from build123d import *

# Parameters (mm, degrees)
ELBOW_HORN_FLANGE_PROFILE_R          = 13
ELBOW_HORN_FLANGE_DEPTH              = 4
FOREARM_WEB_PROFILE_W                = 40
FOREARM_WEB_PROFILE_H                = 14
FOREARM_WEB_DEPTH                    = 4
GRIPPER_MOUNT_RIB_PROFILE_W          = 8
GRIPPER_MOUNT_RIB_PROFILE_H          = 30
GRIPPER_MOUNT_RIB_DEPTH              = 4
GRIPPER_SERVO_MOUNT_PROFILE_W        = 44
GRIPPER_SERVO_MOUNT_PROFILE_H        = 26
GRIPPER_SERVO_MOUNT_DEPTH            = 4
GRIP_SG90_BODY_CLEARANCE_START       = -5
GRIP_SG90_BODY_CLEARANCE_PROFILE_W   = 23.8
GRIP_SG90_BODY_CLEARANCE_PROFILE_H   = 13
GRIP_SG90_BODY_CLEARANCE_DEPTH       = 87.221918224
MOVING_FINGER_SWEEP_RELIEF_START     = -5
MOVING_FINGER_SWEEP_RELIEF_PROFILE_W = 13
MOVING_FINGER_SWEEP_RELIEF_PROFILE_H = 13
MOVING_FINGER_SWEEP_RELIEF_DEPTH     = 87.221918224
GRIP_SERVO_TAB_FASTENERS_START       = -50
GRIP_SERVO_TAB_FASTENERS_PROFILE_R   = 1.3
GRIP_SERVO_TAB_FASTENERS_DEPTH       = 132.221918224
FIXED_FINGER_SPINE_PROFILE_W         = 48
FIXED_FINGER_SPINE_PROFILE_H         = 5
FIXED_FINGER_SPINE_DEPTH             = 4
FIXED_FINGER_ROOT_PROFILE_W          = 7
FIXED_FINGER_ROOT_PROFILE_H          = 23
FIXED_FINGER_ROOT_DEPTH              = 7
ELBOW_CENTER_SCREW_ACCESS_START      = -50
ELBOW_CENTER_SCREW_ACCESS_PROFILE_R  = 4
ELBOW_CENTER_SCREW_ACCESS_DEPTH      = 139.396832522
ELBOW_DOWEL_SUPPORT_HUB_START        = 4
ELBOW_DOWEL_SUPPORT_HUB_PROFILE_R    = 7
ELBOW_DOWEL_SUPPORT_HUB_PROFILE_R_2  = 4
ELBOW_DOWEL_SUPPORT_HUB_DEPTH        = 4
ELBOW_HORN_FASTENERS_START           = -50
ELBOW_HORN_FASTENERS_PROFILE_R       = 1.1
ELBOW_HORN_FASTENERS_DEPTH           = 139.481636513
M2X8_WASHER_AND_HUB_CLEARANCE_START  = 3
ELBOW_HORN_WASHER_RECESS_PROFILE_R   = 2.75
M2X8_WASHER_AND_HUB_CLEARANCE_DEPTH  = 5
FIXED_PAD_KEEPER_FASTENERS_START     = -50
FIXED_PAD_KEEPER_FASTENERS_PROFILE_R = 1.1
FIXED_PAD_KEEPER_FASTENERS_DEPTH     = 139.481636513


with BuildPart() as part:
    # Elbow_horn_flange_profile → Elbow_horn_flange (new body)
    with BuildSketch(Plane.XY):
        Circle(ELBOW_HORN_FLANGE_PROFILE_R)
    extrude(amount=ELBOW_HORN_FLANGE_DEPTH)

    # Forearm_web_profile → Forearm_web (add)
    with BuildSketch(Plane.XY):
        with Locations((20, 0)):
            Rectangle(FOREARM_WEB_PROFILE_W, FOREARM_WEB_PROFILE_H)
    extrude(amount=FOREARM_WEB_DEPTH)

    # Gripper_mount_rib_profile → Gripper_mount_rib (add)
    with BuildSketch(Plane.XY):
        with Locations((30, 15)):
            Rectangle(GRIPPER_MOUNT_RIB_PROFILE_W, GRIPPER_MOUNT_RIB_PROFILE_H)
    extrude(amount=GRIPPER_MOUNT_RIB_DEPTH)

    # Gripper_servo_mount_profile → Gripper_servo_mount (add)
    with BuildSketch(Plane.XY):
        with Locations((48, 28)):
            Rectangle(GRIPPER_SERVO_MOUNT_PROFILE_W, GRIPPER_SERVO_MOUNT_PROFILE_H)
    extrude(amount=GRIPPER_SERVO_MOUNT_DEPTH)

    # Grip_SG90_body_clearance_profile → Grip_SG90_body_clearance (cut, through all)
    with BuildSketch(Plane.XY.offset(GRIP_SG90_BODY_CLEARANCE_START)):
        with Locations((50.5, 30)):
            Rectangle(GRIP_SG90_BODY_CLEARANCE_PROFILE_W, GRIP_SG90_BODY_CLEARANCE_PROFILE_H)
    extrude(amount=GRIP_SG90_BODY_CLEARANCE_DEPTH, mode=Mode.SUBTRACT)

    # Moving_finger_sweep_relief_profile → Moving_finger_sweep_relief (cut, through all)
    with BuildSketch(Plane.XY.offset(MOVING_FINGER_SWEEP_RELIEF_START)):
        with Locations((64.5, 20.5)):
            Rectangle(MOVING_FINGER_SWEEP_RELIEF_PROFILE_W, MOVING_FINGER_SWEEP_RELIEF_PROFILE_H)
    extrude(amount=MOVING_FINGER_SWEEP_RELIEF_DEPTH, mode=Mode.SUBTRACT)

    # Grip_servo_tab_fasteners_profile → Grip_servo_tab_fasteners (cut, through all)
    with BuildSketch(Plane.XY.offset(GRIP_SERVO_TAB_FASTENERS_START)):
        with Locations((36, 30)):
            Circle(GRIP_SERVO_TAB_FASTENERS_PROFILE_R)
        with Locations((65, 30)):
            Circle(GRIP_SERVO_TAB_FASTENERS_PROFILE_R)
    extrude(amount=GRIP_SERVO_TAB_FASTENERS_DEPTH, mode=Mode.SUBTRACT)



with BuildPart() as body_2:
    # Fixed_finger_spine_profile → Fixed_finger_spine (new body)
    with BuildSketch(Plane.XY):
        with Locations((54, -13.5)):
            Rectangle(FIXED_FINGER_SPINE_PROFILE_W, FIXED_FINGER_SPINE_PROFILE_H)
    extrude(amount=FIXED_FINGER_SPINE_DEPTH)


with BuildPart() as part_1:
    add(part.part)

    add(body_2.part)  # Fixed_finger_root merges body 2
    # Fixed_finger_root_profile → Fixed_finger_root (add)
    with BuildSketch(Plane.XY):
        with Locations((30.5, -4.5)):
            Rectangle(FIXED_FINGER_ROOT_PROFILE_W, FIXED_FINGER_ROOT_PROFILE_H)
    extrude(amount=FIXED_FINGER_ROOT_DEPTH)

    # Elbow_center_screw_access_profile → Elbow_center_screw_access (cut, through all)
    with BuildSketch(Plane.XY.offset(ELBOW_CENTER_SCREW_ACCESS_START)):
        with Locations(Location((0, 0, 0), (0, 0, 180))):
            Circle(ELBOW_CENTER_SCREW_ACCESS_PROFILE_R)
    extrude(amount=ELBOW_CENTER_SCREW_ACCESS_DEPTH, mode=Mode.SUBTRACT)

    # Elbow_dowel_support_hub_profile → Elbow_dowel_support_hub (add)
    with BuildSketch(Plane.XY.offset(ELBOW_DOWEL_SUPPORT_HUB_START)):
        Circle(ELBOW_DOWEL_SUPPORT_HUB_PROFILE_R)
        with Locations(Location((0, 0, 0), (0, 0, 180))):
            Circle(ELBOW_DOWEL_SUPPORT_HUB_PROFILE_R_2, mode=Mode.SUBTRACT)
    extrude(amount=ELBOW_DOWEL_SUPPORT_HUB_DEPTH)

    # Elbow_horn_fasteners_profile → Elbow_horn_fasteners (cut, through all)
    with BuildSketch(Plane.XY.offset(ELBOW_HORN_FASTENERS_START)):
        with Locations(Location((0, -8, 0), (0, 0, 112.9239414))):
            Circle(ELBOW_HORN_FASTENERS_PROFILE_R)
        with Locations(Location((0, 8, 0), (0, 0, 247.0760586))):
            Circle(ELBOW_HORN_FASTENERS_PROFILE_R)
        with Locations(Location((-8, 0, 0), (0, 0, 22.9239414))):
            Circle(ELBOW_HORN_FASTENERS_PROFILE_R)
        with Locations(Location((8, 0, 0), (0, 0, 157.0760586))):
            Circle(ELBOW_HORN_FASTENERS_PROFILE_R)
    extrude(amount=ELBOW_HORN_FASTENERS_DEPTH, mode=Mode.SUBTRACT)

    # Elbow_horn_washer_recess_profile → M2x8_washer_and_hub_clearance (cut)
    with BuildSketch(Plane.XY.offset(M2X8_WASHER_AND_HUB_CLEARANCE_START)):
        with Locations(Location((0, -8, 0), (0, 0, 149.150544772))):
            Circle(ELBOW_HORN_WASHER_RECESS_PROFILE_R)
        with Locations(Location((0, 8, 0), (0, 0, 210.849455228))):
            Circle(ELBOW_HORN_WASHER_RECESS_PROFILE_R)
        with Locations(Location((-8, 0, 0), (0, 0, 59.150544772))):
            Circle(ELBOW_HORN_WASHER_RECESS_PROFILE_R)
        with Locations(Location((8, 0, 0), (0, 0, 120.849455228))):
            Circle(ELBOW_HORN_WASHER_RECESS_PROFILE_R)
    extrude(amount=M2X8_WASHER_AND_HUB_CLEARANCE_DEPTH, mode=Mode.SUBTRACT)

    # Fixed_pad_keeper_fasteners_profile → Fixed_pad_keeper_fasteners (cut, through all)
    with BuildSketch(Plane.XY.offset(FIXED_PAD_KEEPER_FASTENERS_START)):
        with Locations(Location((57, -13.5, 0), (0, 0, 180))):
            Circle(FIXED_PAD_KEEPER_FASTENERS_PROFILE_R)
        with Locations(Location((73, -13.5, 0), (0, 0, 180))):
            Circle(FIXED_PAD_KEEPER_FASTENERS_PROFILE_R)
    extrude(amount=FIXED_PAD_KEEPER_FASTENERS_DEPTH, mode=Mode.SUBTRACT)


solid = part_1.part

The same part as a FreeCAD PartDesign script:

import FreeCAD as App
import Part
import Sketcher

doc = App.newDocument("Part")
body = doc.addObject("PartDesign::Body", "Body")

sketch1 = body.newObject("Sketcher::SketchObject", "Sketch")
sketch1.AttachmentSupport = (doc.getObject("XY_Plane"), [""])
sketch1.MapMode = "FlatFace"
sketch1.addGeometry(Part.Circle(App.Vector(0, 0, 0), App.Vector(0, 0, 1), 13), False)
sketch1.addConstraint([
    Sketcher.Constraint("Coincident", 0, 3, -1, 1),
    Sketcher.Constraint("Diameter", 0, 26.0),
])
pad1 = body.newObject("PartDesign::Pad", "Pad")
pad1.Profile = sketch1
pad1.Length = 4

sketch2 = body.newObject("Sketcher::SketchObject", "Sketch001")
sketch2.AttachmentSupport = (doc.getObject("XY_Plane"), [""])
sketch2.MapMode = "FlatFace"
sketch2.addGeometry([
    Part.LineSegment(App.Vector(0, 7, 0), App.Vector(0, -7, 0)),
    Part.LineSegment(App.Vector(0, -7, 0), App.Vector(40, -7, 0)),
    Part.LineSegment(App.Vector(40, -7, 0), App.Vector(40, 7, 0)),
    Part.LineSegment(App.Vector(40, 7, 0), App.Vector(0, 7, 0)),
], False)
sketch2.addConstraint([
    Sketcher.Constraint("Coincident", 0, 2, 1, 1),
    Sketcher.Constraint("Coincident", 1, 2, 2, 1),
    Sketcher.Constraint("Coincident", 2, 2, 3, 1),
    Sketcher.Constraint("Coincident", 3, 2, 0, 1),
    Sketcher.Constraint("Vertical", 0),
    Sketcher.Constraint("Horizontal", 1),
    Sketcher.Constraint("Vertical", 2),
    Sketcher.Constraint("Horizontal", 3),
    Sketcher.Constraint("Symmetric", 0, 2, 3, 2, -1, 1),
    Sketcher.Constraint("DistanceX", 1, 1, 1, 2, 40.0),
    Sketcher.Constraint("DistanceY", 0, 2, 0, 1, 14.0),
])
pad2 = body.newObject("PartDesign::Pad", "Pad001")
pad2.Profile = sketch2
pad2.Length = 4

sketch3 = body.newObject("Sketcher::SketchObject", "Sketch002")
sketch3.AttachmentSupport = (doc.getObject("XY_Plane"), [""])
sketch3.MapMode = "FlatFace"
sketch3.addGeometry([
    Part.LineSegment(App.Vector(26, 30, 0), App.Vector(26, 0, 0)),
    Part.LineSegment(App.Vector(26, 0, 0), App.Vector(34, 0, 0)),
    Part.LineSegment(App.Vector(34, 0, 0), App.Vector(34, 30, 0)),
    Part.LineSegment(App.Vector(34, 30, 0), App.Vector(26, 30, 0)),
], False)
sketch3.addConstraint([
    Sketcher.Constraint("Coincident", 0, 2, 1, 1),
    Sketcher.Constraint("Coincident", 1, 2, 2, 1),
    Sketcher.Constraint("Coincident", 2, 2, 3, 1),
    Sketcher.Constraint("Coincident", 3, 2, 0, 1),
    Sketcher.Constraint("Vertical", 0),
    Sketcher.Constraint("Horizontal", 1),
    Sketcher.Constraint("Vertical", 2),
    Sketcher.Constraint("Horizontal", 3),
    Sketcher.Constraint("PointOnObject", 0, 2, -1),
    Sketcher.Constraint("DistanceX", 1, 1, 1, 2, 8.0),
    Sketcher.Constraint("DistanceY", 0, 2, 0, 1, 30.0),
    Sketcher.Constraint("DistanceX", -1, 1, 0, 2, 26.0),
])
pad3 = body.newObject("PartDesign::Pad", "Pad002")
pad3.Profile = sketch3
pad3.Length = 4

sketch4 = body.newObject("Sketcher::SketchObject", "Sketch003")
sketch4.AttachmentSupport = (doc.getObject("XY_Plane"), [""])
sketch4.MapMode = "FlatFace"
sketch4.addGeometry([
    Part.LineSegment(App.Vector(26, 41, 0), App.Vector(26, 15, 0)),
    Part.LineSegment(App.Vector(26, 15, 0), App.Vector(70, 15, 0)),
    Part.LineSegment(App.Vector(70, 15, 0), App.Vector(70, 41, 0)),
    Part.LineSegment(App.Vector(70, 41, 0), App.Vector(26, 41, 0)),
], False)
sketch4.addConstraint([
    Sketcher.Constraint("Coincident", 0, 2, 1, 1),
    Sketcher.Constraint("Coincident", 1, 2, 2, 1),
    Sketcher.Constraint("Coincident", 2, 2, 3, 1),
    Sketcher.Constraint("Coincident", 3, 2, 0, 1),
    Sketcher.Constraint("Vertical", 0),
    Sketcher.Constraint("Horizontal", 1),
    Sketcher.Constraint("Vertical", 2),
    Sketcher.Constraint("Horizontal", 3),
    Sketcher.Constraint("DistanceX", 1, 1, 1, 2, 44.0),
    Sketcher.Constraint("DistanceY", 0, 2, 0, 1, 26.0),
    Sketcher.Constraint("DistanceX", -1, 1, 0, 2, 26.0),
    Sketcher.Constraint("DistanceY", -1, 1, 0, 2, 15.0),
])
pad4 = body.newObject("PartDesign::Pad", "Pad003")
pad4.Profile = sketch4
pad4.Length = 4

sketch5 = body.newObject("Sketcher::SketchObject", "Sketch004")
sketch5.AttachmentSupport = (doc.getObject("XY_Plane"), [""])
sketch5.MapMode = "FlatFace"
sketch5.AttachmentOffset = App.Placement(App.Vector(0, 0, -5), App.Rotation())
sketch5.addGeometry([
    Part.LineSegment(App.Vector(39, 36, 0), App.Vector(39, 24, 0)),
    Part.LineSegment(App.Vector(39, 24, 0), App.Vector(62, 24, 0)),
    Part.LineSegment(App.Vector(62, 24, 0), App.Vector(62, 36, 0)),
    Part.LineSegment(App.Vector(62, 36, 0), App.Vector(39, 36, 0)),
], False)
sketch5.addConstraint([
    Sketcher.Constraint("Coincident", 0, 2, 1, 1),
    Sketcher.Constraint("Coincident", 1, 2, 2, 1),
    Sketcher.Constraint("Coincident", 2, 2, 3, 1),
    Sketcher.Constraint("Coincident", 3, 2, 0, 1),
    Sketcher.Constraint("Vertical", 0),
    Sketcher.Constraint("Horizontal", 1),
    Sketcher.Constraint("Vertical", 2),
    Sketcher.Constraint("Horizontal", 3),
    Sketcher.Constraint("DistanceY", 0, 2, 0, 1, 13.0),
    Sketcher.Constraint("DistanceX", 1, 1, 1, 2, 23.8),
    Sketcher.Constraint("DistanceX", -1, 1, 0, 2, 38.6),
    Sketcher.Constraint("DistanceY", -1, 1, 0, 2, 23.5),
])
pocket1 = body.newObject("PartDesign::Pocket", "Pocket")
pocket1.Profile = sketch5
pocket1.Type = "ThroughAll"
pocket1.Reversed = True

sketch6 = body.newObject("Sketcher::SketchObject", "Sketch005")
sketch6.AttachmentSupport = (doc.getObject("XY_Plane"), [""])
sketch6.MapMode = "FlatFace"
sketch6.AttachmentOffset = App.Placement(App.Vector(0, 0, -5), App.Rotation())
sketch6.addGeometry([
    Part.LineSegment(App.Vector(58, 27, 0), App.Vector(58, 14, 0)),
    Part.LineSegment(App.Vector(58, 14, 0), App.Vector(71, 14, 0)),
    Part.LineSegment(App.Vector(71, 14, 0), App.Vector(71, 27, 0)),
    Part.LineSegment(App.Vector(71, 27, 0), App.Vector(58, 27, 0)),
], False)
sketch6.addConstraint([
    Sketcher.Constraint("Coincident", 0, 2, 1, 1),
    Sketcher.Constraint("Coincident", 1, 2, 2, 1),
    Sketcher.Constraint("Coincident", 2, 2, 3, 1),
    Sketcher.Constraint("Coincident", 3, 2, 0, 1),
    Sketcher.Constraint("Vertical", 0),
    Sketcher.Constraint("Horizontal", 1),
    Sketcher.Constraint("Vertical", 2),
    Sketcher.Constraint("Horizontal", 3),
    Sketcher.Constraint("Equal", 3, 0),
    Sketcher.Constraint("DistanceX", 1, 1, 1, 2, 13.0),
    Sketcher.Constraint("DistanceX", -1, 1, 0, 2, 58.0),
    Sketcher.Constraint("DistanceY", -1, 1, 0, 2, 14.0),
])
pocket2 = body.newObject("PartDesign::Pocket", "Pocket001")
pocket2.Profile = sketch6
pocket2.Type = "ThroughAll"
pocket2.Reversed = True

sketch7 = body.newObject("Sketcher::SketchObject", "Sketch006")
sketch7.AttachmentSupport = (doc.getObject("XY_Plane"), [""])
sketch7.MapMode = "FlatFace"
sketch7.AttachmentOffset = App.Placement(App.Vector(0, 0, -50), App.Rotation())
sketch7.addGeometry([
    Part.Circle(App.Vector(36, 30, 0), App.Vector(0, 0, 1), 1.3),
    Part.Circle(App.Vector(65, 30, 0), App.Vector(0, 0, 1), 1.3),
], False)
sketch7.addConstraint([
    Sketcher.Constraint("Equal", 0, 1),
    Sketcher.Constraint("Horizontal", 0, 3, 1, 3),
    Sketcher.Constraint("Diameter", 0, 2.6),
    Sketcher.Constraint("DistanceX", -1, 1, 0, 3, 36.0),
    Sketcher.Constraint("DistanceY", -1, 1, 0, 3, 30.0),
    Sketcher.Constraint("DistanceX", -1, 1, 1, 3, 65.0),
])
pocket3 = body.newObject("PartDesign::Pocket", "Pocket002")
pocket3.Profile = sketch7
pocket3.Type = "ThroughAll"
pocket3.Reversed = True
body2 = doc.addObject("PartDesign::Body", "Body001")

sketch8 = body2.newObject("Sketcher::SketchObject", "Sketch007")
sketch8.AttachmentSupport = (doc.getObject("XY_Plane001"), [""])
sketch8.MapMode = "FlatFace"
sketch8.addGeometry([
    Part.LineSegment(App.Vector(30, -11, 0), App.Vector(30, -16, 0)),
    Part.LineSegment(App.Vector(30, -16, 0), App.Vector(78, -16, 0)),
    Part.LineSegment(App.Vector(78, -16, 0), App.Vector(78, -11, 0)),
    Part.LineSegment(App.Vector(78, -11, 0), App.Vector(30, -11, 0)),
], False)
sketch8.addConstraint([
    Sketcher.Constraint("Coincident", 0, 2, 1, 1),
    Sketcher.Constraint("Coincident", 1, 2, 2, 1),
    Sketcher.Constraint("Coincident", 2, 2, 3, 1),
    Sketcher.Constraint("Coincident", 3, 2, 0, 1),
    Sketcher.Constraint("Vertical", 0),
    Sketcher.Constraint("Horizontal", 1),
    Sketcher.Constraint("Vertical", 2),
    Sketcher.Constraint("Horizontal", 3),
    Sketcher.Constraint("DistanceX", 1, 1, 1, 2, 48.0),
    Sketcher.Constraint("DistanceY", 0, 2, 0, 1, 5.0),
    Sketcher.Constraint("DistanceX", -1, 1, 0, 2, 30.0),
    Sketcher.Constraint("DistanceY", 0, 2, -1, 1, 16.0),
])
pad5 = body2.newObject("PartDesign::Pad", "Pad004")
pad5.Profile = sketch8
pad5.Length = 4
body.AllowCompound = True
doc.recompute()

boolean = body.newObject("PartDesign::Boolean", "Boolean")
boolean.Type = "Fuse"
boolean.addObjects([body2])

sketch9 = body.newObject("Sketcher::SketchObject", "Sketch008")
sketch9.AttachmentSupport = (doc.getObject("XY_Plane"), [""])
sketch9.MapMode = "FlatFace"
sketch9.addGeometry([
    Part.LineSegment(App.Vector(27, 7, 0), App.Vector(27, -16, 0)),
    Part.LineSegment(App.Vector(27, -16, 0), App.Vector(34, -16, 0)),
    Part.LineSegment(App.Vector(34, -16, 0), App.Vector(34, 7, 0)),
    Part.LineSegment(App.Vector(34, 7, 0), App.Vector(27, 7, 0)),
], False)
sketch9.addConstraint([
    Sketcher.Constraint("Coincident", 0, 2, 1, 1),
    Sketcher.Constraint("Coincident", 1, 2, 2, 1),
    Sketcher.Constraint("Coincident", 2, 2, 3, 1),
    Sketcher.Constraint("Coincident", 3, 2, 0, 1),
    Sketcher.Constraint("Vertical", 0),
    Sketcher.Constraint("Horizontal", 1),
    Sketcher.Constraint("Vertical", 2),
    Sketcher.Constraint("Horizontal", 3),
    Sketcher.Constraint("DistanceX", 1, 1, 1, 2, 7.0),
    Sketcher.Constraint("DistanceY", 0, 2, 0, 1, 23.0),
    Sketcher.Constraint("DistanceX", -1, 1, 0, 2, 27.0),
    Sketcher.Constraint("DistanceY", 0, 2, -1, 1, 16.0),
])
pad6 = body.newObject("PartDesign::Pad", "Pad005")
pad6.Profile = sketch9
pad6.Length = 7

sketch10 = body.newObject("Sketcher::SketchObject", "Sketch009")
sketch10.AttachmentSupport = (doc.getObject("XY_Plane"), [""])
sketch10.MapMode = "FlatFace"
sketch10.AttachmentOffset = App.Placement(App.Vector(0, 0, -50), App.Rotation())
sketch10.addGeometry(Part.Circle(App.Vector(0, 0, 0), App.Vector(0, 0, 1), 4), False)
sketch10.addConstraint([
    Sketcher.Constraint("Coincident", 0, 3, -1, 1),
    Sketcher.Constraint("Diameter", 0, 8.0),
])
pocket4 = body.newObject("PartDesign::Pocket", "Pocket003")
pocket4.Profile = sketch10
pocket4.Type = "ThroughAll"
pocket4.Reversed = True

sketch11 = body.newObject("Sketcher::SketchObject", "Sketch010")
sketch11.AttachmentSupport = (doc.getObject("XY_Plane"), [""])
sketch11.MapMode = "FlatFace"
sketch11.AttachmentOffset = App.Placement(App.Vector(0, 0, 4), App.Rotation())
sketch11.addGeometry([
    Part.Circle(App.Vector(0, 0, 0), App.Vector(0, 0, 1), 7),
    Part.Circle(App.Vector(0, 0, 0), App.Vector(0, 0, 1), 4),
], False)
sketch11.addConstraint([
    Sketcher.Constraint("Coincident", 0, 3, -1, 1),
    Sketcher.Constraint("Coincident", 1, 3, -1, 1),
    Sketcher.Constraint("Diameter", 0, 14.0),
    Sketcher.Constraint("Diameter", 1, 8.0),
])
pad7 = body.newObject("PartDesign::Pad", "Pad006")
pad7.Profile = sketch11
pad7.Length = 4

sketch12 = body.newObject("Sketcher::SketchObject", "Sketch011")
sketch12.AttachmentSupport = (doc.getObject("XY_Plane"), [""])
sketch12.MapMode = "FlatFace"
sketch12.AttachmentOffset = App.Placement(App.Vector(0, 0, -50), App.Rotation())
sketch12.addGeometry([
    Part.Circle(App.Vector(0, -8, 0), App.Vector(0, 0, 1), 1.1),
    Part.Circle(App.Vector(0, 8, 0), App.Vector(0, 0, 1), 1.1),
    Part.Circle(App.Vector(-8, 0, 0), App.Vector(0, 0, 1), 1.1),
    Part.Circle(App.Vector(8, 0, 0), App.Vector(0, 0, 1), 1.1),
], False)
sketch12.addConstraint([
    Sketcher.Constraint("Equal", 0, 1),
    Sketcher.Constraint("Equal", 1, 2),
    Sketcher.Constraint("Equal", 2, 3),
    Sketcher.Constraint("Symmetric", 0, 3, 1, 3, -1, 1),
    Sketcher.Constraint("Symmetric", 2, 3, 3, 3, -1, 1),
    Sketcher.Constraint("PointOnObject", 0, 3, -2),
    Sketcher.Constraint("PointOnObject", 2, 3, -1),
    Sketcher.Constraint("Diameter", 0, 2.2),
    Sketcher.Constraint("DistanceY", 0, 3, -1, 1, 8.0),
    Sketcher.Constraint("DistanceX", 2, 3, -1, 1, 8.0),
])
pocket5 = body.newObject("PartDesign::Pocket", "Pocket004")
pocket5.Profile = sketch12
pocket5.Type = "ThroughAll"
pocket5.Reversed = True

sketch13 = body.newObject("Sketcher::SketchObject", "Sketch012")
sketch13.AttachmentSupport = (doc.getObject("XY_Plane"), [""])
sketch13.MapMode = "FlatFace"
sketch13.AttachmentOffset = App.Placement(App.Vector(0, 0, 3), App.Rotation())
sketch13.addGeometry([
    Part.Circle(App.Vector(0, -8, 0), App.Vector(0, 0, 1), 2.8),
    Part.Circle(App.Vector(0, 8, 0), App.Vector(0, 0, 1), 2.8),
    Part.Circle(App.Vector(-8, 0, 0), App.Vector(0, 0, 1), 2.8),
    Part.Circle(App.Vector(8, 0, 0), App.Vector(0, 0, 1), 2.8),
], False)
sketch13.addConstraint([
    Sketcher.Constraint("Equal", 0, 1),
    Sketcher.Constraint("Equal", 1, 2),
    Sketcher.Constraint("Equal", 2, 3),
    Sketcher.Constraint("Symmetric", 0, 3, 1, 3, -1, 1),
    Sketcher.Constraint("Symmetric", 2, 3, 3, 3, -1, 1),
    Sketcher.Constraint("PointOnObject", 0, 3, -2),
    Sketcher.Constraint("PointOnObject", 2, 3, -1),
    Sketcher.Constraint("Diameter", 0, 5.5),
    Sketcher.Constraint("DistanceY", 0, 3, -1, 1, 8.0),
    Sketcher.Constraint("DistanceX", 2, 3, -1, 1, 8.0),
])
pocket6 = body.newObject("PartDesign::Pocket", "Pocket005")
pocket6.Profile = sketch13
pocket6.Length = 5
pocket6.Reversed = True

sketch14 = body.newObject("Sketcher::SketchObject", "Sketch013")
sketch14.AttachmentSupport = (doc.getObject("XY_Plane"), [""])
sketch14.MapMode = "FlatFace"
sketch14.AttachmentOffset = App.Placement(App.Vector(0, 0, -50), App.Rotation())
sketch14.addGeometry([
    Part.Circle(App.Vector(57, -13.5, 0), App.Vector(0, 0, 1), 1.1),
    Part.Circle(App.Vector(73, -13.5, 0), App.Vector(0, 0, 1), 1.1),
], False)
sketch14.addConstraint([
    Sketcher.Constraint("Equal", 0, 1),
    Sketcher.Constraint("Horizontal", 0, 3, 1, 3),
    Sketcher.Constraint("Diameter", 0, 2.2),
    Sketcher.Constraint("DistanceX", -1, 1, 0, 3, 57.0),
    Sketcher.Constraint("DistanceX", -1, 1, 1, 3, 73.0),
    Sketcher.Constraint("DistanceY", 0, 3, -1, 1, 13.5),
])
pocket7 = body.newObject("PartDesign::Pocket", "Pocket006")
pocket7.Profile = sketch14
pocket7.Type = "ThroughAll"
pocket7.Reversed = True

doc.recompute()
